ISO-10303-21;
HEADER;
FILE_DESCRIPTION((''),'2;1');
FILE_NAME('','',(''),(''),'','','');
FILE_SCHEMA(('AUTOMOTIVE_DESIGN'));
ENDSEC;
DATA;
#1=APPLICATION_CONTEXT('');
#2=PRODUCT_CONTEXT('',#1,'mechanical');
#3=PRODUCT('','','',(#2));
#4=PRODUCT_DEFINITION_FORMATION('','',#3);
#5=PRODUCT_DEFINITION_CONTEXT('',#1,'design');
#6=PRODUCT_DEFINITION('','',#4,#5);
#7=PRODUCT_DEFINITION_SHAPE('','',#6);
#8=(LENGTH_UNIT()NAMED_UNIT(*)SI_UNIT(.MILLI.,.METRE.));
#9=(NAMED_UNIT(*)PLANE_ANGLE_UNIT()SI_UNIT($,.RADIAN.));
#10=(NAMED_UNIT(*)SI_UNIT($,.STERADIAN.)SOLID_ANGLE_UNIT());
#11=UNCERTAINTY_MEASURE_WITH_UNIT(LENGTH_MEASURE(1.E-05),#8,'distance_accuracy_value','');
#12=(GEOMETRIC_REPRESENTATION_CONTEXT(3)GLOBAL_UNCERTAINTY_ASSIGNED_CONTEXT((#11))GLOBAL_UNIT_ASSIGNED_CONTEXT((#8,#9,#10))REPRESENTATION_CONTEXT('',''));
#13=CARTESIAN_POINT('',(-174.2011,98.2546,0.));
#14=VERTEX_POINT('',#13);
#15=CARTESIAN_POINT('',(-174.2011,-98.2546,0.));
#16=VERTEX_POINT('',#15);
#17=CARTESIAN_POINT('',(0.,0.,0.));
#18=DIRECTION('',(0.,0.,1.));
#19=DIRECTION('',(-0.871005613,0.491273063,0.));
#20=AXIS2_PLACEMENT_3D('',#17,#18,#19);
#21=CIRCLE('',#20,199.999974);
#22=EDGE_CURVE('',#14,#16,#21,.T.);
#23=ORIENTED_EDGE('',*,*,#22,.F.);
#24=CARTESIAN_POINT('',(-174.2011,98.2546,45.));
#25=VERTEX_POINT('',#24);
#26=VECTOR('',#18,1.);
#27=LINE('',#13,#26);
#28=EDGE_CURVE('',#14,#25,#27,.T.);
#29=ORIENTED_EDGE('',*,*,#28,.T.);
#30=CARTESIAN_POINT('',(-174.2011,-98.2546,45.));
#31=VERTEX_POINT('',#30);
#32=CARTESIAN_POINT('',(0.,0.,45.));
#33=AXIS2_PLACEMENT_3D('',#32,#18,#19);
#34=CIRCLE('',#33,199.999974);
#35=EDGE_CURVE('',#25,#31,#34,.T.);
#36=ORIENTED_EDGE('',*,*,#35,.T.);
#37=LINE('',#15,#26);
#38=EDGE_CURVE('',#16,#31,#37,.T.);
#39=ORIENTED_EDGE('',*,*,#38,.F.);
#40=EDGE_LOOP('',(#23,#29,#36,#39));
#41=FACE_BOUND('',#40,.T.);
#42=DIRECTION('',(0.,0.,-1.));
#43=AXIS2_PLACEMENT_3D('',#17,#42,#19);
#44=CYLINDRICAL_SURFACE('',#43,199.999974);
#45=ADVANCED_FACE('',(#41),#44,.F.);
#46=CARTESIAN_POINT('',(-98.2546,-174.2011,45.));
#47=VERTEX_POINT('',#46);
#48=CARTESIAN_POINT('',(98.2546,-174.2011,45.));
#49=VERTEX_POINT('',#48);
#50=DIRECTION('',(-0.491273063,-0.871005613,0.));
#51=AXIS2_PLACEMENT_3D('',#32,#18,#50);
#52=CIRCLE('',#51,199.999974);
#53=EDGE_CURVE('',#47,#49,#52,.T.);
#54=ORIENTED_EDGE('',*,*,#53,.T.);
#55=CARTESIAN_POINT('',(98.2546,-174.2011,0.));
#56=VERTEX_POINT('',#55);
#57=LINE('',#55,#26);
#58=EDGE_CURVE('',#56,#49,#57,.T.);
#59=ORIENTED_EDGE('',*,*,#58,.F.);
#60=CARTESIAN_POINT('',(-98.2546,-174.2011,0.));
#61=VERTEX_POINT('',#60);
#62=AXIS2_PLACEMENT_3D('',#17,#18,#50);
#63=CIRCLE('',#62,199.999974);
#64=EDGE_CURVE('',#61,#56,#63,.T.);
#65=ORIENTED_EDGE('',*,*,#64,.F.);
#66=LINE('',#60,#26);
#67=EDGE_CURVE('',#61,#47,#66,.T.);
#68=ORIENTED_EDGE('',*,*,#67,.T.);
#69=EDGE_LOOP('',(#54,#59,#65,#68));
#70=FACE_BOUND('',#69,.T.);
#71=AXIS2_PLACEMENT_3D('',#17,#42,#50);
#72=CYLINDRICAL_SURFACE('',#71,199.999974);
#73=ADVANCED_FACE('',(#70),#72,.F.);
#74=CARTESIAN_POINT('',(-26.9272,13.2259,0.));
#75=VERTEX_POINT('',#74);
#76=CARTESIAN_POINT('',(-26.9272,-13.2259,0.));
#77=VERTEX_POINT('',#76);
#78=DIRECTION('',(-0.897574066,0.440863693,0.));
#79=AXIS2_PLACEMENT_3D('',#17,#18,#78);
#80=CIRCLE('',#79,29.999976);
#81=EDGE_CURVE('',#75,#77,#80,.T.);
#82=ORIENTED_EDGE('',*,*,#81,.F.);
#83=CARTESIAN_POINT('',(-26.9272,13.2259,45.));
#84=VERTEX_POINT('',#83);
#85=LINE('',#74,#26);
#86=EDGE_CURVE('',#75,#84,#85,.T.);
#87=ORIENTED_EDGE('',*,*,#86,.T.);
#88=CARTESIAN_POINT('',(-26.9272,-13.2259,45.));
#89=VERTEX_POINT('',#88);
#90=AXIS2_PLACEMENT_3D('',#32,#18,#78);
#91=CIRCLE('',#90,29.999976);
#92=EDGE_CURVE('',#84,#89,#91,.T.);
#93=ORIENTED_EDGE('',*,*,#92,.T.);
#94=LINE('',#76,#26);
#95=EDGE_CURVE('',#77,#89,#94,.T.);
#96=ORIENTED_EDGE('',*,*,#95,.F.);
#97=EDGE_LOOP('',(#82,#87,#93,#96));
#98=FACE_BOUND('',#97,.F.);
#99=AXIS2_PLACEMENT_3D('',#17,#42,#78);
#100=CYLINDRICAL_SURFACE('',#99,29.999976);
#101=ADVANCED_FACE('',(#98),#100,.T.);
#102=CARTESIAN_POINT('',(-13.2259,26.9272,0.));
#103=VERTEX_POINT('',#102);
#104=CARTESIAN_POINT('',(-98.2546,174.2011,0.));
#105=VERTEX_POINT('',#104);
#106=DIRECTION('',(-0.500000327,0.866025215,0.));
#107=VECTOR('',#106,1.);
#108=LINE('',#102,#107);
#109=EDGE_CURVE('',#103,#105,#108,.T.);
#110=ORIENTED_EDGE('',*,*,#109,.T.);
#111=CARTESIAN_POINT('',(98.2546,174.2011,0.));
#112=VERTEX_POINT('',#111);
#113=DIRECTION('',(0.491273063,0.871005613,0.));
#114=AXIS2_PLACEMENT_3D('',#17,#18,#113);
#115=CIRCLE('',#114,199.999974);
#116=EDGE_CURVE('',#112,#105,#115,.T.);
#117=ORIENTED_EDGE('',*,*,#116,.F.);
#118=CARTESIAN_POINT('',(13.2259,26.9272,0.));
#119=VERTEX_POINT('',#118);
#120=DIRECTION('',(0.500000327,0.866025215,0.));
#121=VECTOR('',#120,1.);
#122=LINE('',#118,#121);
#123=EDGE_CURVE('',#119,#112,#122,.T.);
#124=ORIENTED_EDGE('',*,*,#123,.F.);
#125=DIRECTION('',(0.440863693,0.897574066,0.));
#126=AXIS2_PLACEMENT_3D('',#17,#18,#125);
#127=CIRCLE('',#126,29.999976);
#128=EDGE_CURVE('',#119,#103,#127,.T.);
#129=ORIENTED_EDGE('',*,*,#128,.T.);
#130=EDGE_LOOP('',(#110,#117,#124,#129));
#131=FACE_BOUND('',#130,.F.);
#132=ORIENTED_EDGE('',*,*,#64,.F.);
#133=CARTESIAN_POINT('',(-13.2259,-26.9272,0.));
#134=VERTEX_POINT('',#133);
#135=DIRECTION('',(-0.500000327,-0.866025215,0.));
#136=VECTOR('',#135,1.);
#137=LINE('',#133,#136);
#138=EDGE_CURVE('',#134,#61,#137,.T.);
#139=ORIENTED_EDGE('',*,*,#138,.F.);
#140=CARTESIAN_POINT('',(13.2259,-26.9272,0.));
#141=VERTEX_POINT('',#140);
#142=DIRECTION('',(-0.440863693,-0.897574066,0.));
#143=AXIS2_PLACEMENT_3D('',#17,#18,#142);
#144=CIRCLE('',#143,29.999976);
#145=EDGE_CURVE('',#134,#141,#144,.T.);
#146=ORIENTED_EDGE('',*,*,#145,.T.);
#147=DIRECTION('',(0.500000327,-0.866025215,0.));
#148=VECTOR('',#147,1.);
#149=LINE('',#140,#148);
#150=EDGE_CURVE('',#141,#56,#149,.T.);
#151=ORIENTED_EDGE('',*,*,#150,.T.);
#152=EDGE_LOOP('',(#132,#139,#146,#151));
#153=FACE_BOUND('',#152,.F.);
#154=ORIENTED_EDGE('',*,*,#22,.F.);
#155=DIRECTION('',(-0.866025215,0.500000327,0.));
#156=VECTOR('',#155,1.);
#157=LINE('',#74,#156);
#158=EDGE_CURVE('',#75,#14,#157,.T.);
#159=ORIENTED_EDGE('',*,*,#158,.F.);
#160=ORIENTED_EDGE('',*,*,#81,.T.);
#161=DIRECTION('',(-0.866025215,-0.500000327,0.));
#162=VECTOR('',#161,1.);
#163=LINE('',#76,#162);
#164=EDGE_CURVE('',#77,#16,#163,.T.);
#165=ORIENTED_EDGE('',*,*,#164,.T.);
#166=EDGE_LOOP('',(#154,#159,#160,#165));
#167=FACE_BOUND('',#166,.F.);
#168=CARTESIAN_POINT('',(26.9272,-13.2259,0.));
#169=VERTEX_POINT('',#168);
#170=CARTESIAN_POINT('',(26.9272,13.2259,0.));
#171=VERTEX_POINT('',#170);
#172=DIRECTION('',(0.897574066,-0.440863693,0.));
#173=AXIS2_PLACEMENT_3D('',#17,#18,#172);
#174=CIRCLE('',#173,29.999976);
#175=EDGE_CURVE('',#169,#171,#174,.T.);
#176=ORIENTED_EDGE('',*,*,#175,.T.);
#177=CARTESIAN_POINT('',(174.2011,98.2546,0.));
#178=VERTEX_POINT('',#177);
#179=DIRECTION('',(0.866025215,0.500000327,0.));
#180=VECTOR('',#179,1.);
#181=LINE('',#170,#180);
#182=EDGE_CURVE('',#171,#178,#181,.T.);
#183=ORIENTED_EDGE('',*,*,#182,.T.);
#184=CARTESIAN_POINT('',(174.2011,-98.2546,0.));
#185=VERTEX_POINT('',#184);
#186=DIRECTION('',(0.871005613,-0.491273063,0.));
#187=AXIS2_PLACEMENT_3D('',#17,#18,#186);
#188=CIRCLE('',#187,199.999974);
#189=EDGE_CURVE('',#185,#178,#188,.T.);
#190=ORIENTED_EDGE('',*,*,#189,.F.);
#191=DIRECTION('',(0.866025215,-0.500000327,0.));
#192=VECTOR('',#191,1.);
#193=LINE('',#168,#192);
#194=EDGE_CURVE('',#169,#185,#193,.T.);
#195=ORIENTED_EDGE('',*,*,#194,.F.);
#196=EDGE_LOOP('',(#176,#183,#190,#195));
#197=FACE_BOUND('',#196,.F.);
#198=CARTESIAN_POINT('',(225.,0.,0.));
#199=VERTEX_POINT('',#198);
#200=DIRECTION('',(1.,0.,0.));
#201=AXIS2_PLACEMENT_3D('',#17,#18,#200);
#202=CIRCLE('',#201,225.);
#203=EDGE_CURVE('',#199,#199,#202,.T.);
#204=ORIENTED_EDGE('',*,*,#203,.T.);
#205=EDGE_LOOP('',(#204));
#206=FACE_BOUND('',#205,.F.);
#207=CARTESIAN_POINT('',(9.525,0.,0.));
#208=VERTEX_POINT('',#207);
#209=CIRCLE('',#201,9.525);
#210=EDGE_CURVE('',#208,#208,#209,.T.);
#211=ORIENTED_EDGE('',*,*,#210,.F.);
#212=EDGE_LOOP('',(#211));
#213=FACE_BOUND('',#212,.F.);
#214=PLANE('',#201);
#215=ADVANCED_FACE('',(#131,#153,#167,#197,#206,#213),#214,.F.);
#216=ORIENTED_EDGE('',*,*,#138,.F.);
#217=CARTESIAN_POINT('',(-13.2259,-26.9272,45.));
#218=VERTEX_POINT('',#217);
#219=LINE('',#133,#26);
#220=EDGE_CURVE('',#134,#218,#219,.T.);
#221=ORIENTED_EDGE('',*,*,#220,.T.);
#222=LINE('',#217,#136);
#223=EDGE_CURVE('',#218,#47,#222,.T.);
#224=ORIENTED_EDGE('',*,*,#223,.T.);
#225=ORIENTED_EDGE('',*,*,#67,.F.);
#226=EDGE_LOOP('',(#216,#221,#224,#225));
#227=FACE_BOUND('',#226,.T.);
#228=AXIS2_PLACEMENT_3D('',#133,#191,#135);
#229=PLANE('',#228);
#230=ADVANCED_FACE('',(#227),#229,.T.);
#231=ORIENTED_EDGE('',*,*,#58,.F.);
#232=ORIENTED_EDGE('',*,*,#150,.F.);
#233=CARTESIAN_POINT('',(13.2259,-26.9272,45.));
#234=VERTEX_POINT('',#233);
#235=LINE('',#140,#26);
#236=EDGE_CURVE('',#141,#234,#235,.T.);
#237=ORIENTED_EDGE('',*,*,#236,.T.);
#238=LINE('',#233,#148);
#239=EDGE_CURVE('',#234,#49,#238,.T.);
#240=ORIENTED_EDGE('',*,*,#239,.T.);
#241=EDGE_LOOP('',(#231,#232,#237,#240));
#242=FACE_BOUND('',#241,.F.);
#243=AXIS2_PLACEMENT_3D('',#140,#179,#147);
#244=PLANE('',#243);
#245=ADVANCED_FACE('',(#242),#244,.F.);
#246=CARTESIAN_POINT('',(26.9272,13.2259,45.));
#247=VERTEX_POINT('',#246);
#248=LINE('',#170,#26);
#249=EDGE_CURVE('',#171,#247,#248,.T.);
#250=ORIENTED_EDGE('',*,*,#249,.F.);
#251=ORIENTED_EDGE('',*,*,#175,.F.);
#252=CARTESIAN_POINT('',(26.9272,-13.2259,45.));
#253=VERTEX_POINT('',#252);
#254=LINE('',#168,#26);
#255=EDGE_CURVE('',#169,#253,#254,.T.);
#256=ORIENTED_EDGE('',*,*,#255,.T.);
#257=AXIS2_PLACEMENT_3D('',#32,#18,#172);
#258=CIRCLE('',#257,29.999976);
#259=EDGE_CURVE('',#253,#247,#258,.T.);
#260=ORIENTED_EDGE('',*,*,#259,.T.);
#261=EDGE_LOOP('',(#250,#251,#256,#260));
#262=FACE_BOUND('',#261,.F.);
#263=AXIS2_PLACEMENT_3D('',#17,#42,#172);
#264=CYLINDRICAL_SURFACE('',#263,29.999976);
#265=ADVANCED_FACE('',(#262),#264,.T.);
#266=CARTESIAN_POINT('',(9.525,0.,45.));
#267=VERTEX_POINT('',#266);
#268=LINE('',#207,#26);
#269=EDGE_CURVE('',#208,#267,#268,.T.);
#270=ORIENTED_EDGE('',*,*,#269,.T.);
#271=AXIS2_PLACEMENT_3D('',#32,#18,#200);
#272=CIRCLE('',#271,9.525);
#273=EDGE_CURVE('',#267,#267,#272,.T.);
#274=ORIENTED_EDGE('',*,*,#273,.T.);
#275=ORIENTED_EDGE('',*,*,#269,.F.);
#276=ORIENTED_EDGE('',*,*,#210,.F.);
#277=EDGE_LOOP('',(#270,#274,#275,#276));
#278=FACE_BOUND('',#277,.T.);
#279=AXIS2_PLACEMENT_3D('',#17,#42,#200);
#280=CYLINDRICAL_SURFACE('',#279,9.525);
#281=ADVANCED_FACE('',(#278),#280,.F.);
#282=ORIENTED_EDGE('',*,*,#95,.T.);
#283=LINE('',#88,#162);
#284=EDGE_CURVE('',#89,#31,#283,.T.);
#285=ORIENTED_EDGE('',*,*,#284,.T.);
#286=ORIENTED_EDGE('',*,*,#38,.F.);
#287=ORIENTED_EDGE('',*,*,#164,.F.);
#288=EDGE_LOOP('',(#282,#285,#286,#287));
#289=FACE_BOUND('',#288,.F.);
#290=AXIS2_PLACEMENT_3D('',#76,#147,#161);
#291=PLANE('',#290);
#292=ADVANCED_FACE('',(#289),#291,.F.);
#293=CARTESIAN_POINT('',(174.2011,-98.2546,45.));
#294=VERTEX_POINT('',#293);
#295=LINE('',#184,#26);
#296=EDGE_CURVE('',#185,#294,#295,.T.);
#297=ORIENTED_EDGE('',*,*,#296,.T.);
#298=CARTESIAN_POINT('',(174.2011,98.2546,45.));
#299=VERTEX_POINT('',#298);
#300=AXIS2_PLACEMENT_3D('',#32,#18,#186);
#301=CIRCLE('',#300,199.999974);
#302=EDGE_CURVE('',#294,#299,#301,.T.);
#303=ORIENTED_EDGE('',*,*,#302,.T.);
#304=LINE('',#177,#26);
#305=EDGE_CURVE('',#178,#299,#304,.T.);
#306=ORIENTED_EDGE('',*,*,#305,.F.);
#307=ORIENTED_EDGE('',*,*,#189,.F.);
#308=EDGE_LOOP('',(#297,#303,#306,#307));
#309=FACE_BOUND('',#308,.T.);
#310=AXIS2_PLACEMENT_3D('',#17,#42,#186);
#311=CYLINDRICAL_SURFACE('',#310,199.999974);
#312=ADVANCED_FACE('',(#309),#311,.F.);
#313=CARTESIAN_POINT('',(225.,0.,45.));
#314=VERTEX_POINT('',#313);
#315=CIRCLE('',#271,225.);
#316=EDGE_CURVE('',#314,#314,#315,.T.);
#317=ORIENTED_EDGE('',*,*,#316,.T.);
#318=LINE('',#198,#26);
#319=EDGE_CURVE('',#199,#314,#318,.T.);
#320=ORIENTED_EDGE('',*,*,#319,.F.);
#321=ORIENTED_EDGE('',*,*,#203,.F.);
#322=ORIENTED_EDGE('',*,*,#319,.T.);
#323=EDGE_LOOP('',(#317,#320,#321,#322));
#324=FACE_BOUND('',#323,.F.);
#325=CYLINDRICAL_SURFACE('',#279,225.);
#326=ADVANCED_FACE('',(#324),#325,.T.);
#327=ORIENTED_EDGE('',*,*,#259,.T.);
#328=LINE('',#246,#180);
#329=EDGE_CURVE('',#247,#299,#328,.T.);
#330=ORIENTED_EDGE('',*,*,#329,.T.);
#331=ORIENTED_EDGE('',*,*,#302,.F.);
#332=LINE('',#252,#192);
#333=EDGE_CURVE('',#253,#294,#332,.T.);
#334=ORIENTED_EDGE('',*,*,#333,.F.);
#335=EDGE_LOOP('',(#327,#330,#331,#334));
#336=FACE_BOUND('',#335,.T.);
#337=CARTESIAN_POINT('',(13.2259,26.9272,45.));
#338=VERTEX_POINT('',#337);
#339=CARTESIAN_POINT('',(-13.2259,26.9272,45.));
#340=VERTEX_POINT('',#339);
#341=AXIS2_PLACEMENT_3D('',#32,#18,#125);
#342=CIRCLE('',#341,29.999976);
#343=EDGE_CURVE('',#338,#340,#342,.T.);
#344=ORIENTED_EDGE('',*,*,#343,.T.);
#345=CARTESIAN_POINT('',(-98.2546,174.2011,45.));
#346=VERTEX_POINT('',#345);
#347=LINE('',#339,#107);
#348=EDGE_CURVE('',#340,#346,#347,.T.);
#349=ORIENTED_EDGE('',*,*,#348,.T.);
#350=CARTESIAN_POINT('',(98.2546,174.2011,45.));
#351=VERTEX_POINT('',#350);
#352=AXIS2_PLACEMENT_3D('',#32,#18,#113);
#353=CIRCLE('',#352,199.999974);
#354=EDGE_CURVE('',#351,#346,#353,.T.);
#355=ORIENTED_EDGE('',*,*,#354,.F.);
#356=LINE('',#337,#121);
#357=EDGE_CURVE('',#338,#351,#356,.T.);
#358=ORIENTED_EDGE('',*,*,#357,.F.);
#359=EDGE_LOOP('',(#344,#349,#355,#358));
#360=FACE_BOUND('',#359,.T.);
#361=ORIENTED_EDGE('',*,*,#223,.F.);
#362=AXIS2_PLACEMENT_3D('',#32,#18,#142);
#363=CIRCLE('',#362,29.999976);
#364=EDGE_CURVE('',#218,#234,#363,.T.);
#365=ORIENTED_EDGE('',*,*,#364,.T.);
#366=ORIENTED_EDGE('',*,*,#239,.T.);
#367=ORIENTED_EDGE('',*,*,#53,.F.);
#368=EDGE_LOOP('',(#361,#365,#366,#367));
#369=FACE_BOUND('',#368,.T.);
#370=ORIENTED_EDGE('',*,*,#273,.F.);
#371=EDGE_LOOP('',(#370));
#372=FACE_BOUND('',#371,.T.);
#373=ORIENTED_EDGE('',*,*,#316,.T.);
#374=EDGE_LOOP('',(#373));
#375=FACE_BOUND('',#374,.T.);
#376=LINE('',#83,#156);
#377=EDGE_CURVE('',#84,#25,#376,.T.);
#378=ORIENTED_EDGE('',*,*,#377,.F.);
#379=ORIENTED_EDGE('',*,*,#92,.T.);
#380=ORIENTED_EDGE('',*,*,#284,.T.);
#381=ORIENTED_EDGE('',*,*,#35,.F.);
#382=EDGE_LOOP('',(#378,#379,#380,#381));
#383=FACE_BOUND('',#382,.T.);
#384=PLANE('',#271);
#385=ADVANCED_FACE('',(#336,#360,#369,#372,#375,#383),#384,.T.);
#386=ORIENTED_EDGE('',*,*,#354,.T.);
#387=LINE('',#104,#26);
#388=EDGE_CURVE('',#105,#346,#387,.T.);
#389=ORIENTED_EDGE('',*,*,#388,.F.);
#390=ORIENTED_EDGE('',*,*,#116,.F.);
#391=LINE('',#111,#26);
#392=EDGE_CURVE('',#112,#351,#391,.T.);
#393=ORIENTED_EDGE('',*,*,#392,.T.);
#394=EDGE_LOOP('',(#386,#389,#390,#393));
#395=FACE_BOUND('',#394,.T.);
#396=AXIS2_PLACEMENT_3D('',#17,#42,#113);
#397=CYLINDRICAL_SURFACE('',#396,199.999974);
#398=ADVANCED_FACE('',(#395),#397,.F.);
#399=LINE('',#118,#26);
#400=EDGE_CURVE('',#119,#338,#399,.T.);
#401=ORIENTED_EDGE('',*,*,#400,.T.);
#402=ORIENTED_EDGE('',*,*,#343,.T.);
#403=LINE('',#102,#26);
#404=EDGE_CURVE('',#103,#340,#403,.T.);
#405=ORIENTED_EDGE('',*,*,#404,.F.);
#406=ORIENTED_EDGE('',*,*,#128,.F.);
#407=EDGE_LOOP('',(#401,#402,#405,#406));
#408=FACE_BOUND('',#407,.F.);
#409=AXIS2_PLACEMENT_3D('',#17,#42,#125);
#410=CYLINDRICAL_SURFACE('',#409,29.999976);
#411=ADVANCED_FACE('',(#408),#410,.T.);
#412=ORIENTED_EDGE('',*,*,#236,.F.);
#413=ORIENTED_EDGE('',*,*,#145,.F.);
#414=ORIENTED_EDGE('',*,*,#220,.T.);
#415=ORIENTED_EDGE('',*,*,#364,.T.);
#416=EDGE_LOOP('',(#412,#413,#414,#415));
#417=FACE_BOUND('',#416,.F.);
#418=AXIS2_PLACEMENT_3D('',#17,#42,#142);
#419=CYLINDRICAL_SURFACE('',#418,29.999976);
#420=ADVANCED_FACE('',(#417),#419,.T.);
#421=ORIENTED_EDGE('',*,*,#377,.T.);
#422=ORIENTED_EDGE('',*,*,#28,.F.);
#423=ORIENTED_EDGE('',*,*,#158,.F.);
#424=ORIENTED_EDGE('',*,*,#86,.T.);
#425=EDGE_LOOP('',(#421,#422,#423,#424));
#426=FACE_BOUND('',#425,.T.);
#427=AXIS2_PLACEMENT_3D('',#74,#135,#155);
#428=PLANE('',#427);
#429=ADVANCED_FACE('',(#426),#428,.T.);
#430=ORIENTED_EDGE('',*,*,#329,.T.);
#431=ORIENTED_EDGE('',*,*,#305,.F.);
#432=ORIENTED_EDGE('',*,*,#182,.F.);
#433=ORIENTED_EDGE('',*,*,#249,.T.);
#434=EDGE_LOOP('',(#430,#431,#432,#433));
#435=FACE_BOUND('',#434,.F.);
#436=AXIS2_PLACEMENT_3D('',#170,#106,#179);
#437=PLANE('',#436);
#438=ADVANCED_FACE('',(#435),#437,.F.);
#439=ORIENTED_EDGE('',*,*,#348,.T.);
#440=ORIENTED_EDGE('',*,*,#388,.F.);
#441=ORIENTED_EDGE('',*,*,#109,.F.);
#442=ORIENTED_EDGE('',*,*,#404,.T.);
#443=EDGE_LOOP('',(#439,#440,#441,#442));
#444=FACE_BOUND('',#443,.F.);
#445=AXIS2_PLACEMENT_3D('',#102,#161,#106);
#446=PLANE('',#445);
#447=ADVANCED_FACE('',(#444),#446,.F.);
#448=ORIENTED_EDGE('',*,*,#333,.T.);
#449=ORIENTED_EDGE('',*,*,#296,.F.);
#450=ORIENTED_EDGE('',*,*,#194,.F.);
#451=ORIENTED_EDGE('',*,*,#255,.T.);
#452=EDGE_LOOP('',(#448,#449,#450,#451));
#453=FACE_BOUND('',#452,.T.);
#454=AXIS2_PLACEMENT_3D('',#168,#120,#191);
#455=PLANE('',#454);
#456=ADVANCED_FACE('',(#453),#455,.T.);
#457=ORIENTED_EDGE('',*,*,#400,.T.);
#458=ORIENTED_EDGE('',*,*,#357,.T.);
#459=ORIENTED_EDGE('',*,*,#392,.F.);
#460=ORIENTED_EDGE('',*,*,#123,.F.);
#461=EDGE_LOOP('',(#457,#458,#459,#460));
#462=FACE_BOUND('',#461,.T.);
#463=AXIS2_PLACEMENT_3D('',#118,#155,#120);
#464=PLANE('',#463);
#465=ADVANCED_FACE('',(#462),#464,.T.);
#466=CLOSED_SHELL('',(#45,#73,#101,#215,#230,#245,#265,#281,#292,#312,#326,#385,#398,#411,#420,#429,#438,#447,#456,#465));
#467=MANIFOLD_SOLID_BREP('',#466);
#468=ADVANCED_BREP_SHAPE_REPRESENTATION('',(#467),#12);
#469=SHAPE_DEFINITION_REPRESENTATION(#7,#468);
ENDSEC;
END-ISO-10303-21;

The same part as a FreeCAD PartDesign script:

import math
import FreeCAD as App
import Part
import Sketcher
Q = App.Units.Quantity

doc = App.newDocument("Part")
body = doc.addObject("PartDesign::Body", "Body")

# Sketch on XY plane
sketch1 = body.newObject("Sketcher::SketchObject", "Sketch")
sketch1.AttachmentSupport = (doc.getObject("XY_Plane"), [""])
sketch1.MapMode = "FlatFace"
sketch1.addGeometry([
    Part.Circle(App.Vector(0, 0, 0), App.Vector(0, 0, 1), 225),  # 0
    Part.ArcOfCircle(Part.Circle(App.Vector(0, 0, 0), App.Vector(0, 0, 1), 30), math.radians(-116), math.radians(-64)),  # 1
    Part.LineSegment(App.Vector(13, -27, 0), App.Vector(98, -174, 0)),  # 2
    Part.ArcOfCircle(Part.Circle(App.Vector(0, 0, 0), App.Vector(0, 0, 1), 200), math.radians(-119), math.radians(-61)),  # 3
    Part.LineSegment(App.Vector(-98, -174, 0), App.Vector(-13, -27, 0)),  # 4
    Part.ArcOfCircle(Part.Circle(App.Vector(0, 0, 0), App.Vector(0, 0, 1), 30), math.radians(154), math.radians(206)),  # 5
    Part.LineSegment(App.Vector(-27, -13, 0), App.Vector(-174, -98, 0)),  # 6
    Part.ArcOfCircle(Part.Circle(App.Vector(0, 0, 0), App.Vector(0, 0, 1), 200), math.radians(151), math.radians(209)),  # 7
    Part.LineSegment(App.Vector(-174, 98, 0), App.Vector(-27, 13, 0)),  # 8
    Part.Circle(App.Vector(0, 0, 0), App.Vector(0, 0, 1), 10),  # 9
    Part.LineSegment(App.Vector(174, -98, 0), App.Vector(27, -13, 0)),  # 10
    Part.ArcOfCircle(Part.Circle(App.Vector(0, 0, 0), App.Vector(0, 0, 1), 30), math.radians(-26), math.radians(26)),  # 11
    Part.LineSegment(App.Vector(27, 13, 0), App.Vector(174, 98, 0)),  # 12
    Part.ArcOfCircle(Part.Circle(App.Vector(0, 0, 0), App.Vector(0, 0, 1), 200), math.radians(-29), math.radians(29)),  # 13
    Part.ArcOfCircle(Part.Circle(App.Vector(0, 0, 0), App.Vector(0, 0, 1), 30), math.radians(64), math.radians(116)),  # 14
    Part.LineSegment(App.Vector(-13, 27, 0), App.Vector(-98, 174, 0)),  # 15
    Part.ArcOfCircle(Part.Circle(App.Vector(0, 0, 0), App.Vector(0, 0, 1), 200), math.radians(61), math.radians(119)),  # 16
    Part.LineSegment(App.Vector(98, 174, 0), App.Vector(13, 27, 0)),  # 17
], False)
sketch1.addConstraint([
    Sketcher.Constraint("Coincident", 1, 2, 2, 1),
    Sketcher.Constraint("Coincident", 2, 2, 3, 2),
    Sketcher.Constraint("Coincident", 3, 1, 4, 1),
    Sketcher.Constraint("Coincident", 4, 2, 1, 1),
    Sketcher.Constraint("Coincident", 5, 2, 6, 1),
    Sketcher.Constraint("Coincident", 6, 2, 7, 2),
    Sketcher.Constraint("Coincident", 7, 1, 8, 1),
    Sketcher.Constraint("Coincident", 8, 2, 5, 1),
    Sketcher.Constraint("Coincident", 10, 2, 11, 1),
    Sketcher.Constraint("Coincident", 11, 2, 12, 1),
    Sketcher.Constraint("Coincident", 12, 2, 13, 2),
    Sketcher.Constraint("Coincident", 13, 1, 10, 1),
    Sketcher.Constraint("Coincident", 14, 2, 15, 1),
    Sketcher.Constraint("Coincident", 15, 2, 16, 2),
    Sketcher.Constraint("Coincident", 16, 1, 17, 1),
    Sketcher.Constraint("Coincident", 17, 2, 14, 1),
    Sketcher.Constraint("Coincident", 0, 3, -1, 1),
    Sketcher.Constraint("Coincident", 1, 3, -1, 1),
    Sketcher.Constraint("Coincident", 3, 3, -1, 1),
    Sketcher.Constraint("Coincident", 5, 3, -1, 1),
    Sketcher.Constraint("Coincident", 7, 3, -1, 1),
    Sketcher.Constraint("Coincident", 9, 3, -1, 1),
    Sketcher.Constraint("Coincident", 11, 3, -1, 1),
    Sketcher.Constraint("Coincident", 13, 3, -1, 1),
    Sketcher.Constraint("Coincident", 14, 3, -1, 1),
    Sketcher.Constraint("Coincident", 16, 3, -1, 1),
    Sketcher.Constraint("Equal", 1, 5),
    Sketcher.Constraint("Equal", 3, 7),
    Sketcher.Constraint("Equal", 5, 11),
    Sketcher.Constraint("Equal", 7, 13),
    Sketcher.Constraint("Equal", 11, 14),
    Sketcher.Constraint("Equal", 13, 16),
    Sketcher.Constraint("Perpendicular", 2, 6),
    Sketcher.Constraint("Perpendicular", 4, 8),
    Sketcher.Constraint("Parallel", 8, 10),
    Sketcher.Constraint("Parallel", 6, 12),
    Sketcher.Constraint("Perpendicular", 12, 15),
    Sketcher.Constraint("Perpendicular", 10, 17),
    Sketcher.Constraint("Horizontal", 2, 2, 3, 1),
    Sketcher.Constraint("Horizontal", 1, 2, 4, 2),
    Sketcher.Constraint("Horizontal", 5, 2, 10, 2),
    Sketcher.Constraint("Horizontal", 8, 2, 11, 2),
    Sketcher.Constraint("Horizontal", 15, 2, 16, 1),
    Sketcher.Constraint("Vertical", 6, 2, 7, 1),
    Sketcher.Constraint("Vertical", 4, 2, 14, 2),
    Sketcher.Constraint("Equal", 4, 6),
    Sketcher.Constraint("Diameter", 0, 450.0),
    Sketcher.Constraint("Radius", 1, 30.0),
    Sketcher.Constraint("Radius", 3, 200.0),
    Sketcher.Constraint("Angle", 2, Q("-60 deg")),
    Sketcher.Constraint("Diameter", 9, 19.05),
    Sketcher.Constraint("DistanceX", -1, 1, 1, 2, 13.226),
])
pad1 = body.newObject("PartDesign::Pad", "Pad")
pad1.Profile = sketch1
pad1.Length = 45

doc.recompute()
